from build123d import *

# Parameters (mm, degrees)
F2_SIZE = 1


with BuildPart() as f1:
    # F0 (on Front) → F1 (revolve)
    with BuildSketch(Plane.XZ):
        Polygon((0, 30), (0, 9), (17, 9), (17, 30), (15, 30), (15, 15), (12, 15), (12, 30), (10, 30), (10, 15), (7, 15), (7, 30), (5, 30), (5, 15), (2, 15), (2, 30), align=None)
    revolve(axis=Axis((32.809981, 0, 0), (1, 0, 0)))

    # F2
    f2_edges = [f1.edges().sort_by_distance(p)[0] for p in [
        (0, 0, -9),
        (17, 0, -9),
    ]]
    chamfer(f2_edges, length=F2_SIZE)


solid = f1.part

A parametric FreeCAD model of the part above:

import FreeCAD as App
import Part
import Sketcher


def edges_at(feature, points):
    """Names of the edges that pass closest to the given points."""
    edges = feature.Shape.Edges
    near = lambda p: min(range(len(edges)), key=lambda i: edges[i].distToShape(Part.Vertex(*p))[0])
    return sorted({f"Edge{near(p) + 1}" for p in points})


def add_polygon(sketch, points):
    """Adds a closed chain of lines whose ends are joined by coincident constraints."""
    first, n = sketch.GeometryCount, len(points)
    for a, b in zip(points, points[1:] + points[:1]):
        sketch.addGeometry(Part.LineSegment(App.Vector(*a, 0), App.Vector(*b, 0)), False)
    for i in range(n):
        sketch.addConstraint(Sketcher.Constraint("Coincident", first + i, 2, first + (i + 1) % n, 1))

doc = App.newDocument("Part")
params = doc.addObject("Spreadsheet::Sheet", "Params")
for row, (alias, value) in enumerate([
    ("sketch1_width", "17 mm"),
    ("sketch1_width2", "2 mm"),
    ("sketch1_height", "21 mm"),
    ("sketch1_height2", "15 mm"),
    ("revolution_angle", "360 deg"),
    ("chamfer_size", "1 mm"),
], start=1):
    params.set(f"A{row}", alias)
    params.set(f"B{row}", "=" + value)
    params.setAlias(f"B{row}", alias)

body = doc.addObject("PartDesign::Body", "Body")

# Sketch on XZ plane
sketch1 = body.newObject("Sketcher::SketchObject", "Sketch")
sketch1.AttachmentSupport = (doc.getObject("XZ_Plane"), [""])
sketch1.MapMode = "FlatFace"
add_polygon(sketch1, [(0, 30), (0, 9), (17, 9), (17, 30), (15, 30), (15, 15), (12, 15), (12, 30), (10, 30), (10, 15), (7, 15), (7, 30), (5, 30), (5, 15), (2, 15), (2, 30)])  # lines 0-15
sketch1.addConstraint([
    Sketcher.Constraint("Vertical", 0),
    Sketcher.Constraint("Horizontal", 1),
    Sketcher.Constraint("Vertical", 2),
    Sketcher.Constraint("Horizontal", 3),
    Sketcher.Constraint("Vertical", 4),
    Sketcher.Constraint("Horizontal", 5),
    Sketcher.Constraint("Vertical", 6),
    Sketcher.Constraint("Horizontal", 7),
    Sketcher.Constraint("Vertical", 8),
    Sketcher.Constraint("Horizontal", 9),
    Sketcher.Constraint("Vertical", 10),
    Sketcher.Constraint("Horizontal", 11),
    Sketcher.Constraint("Vertical", 12),
    Sketcher.Constraint("Horizontal", 13),
    Sketcher.Constraint("Vertical", 14),
    Sketcher.Constraint("Horizontal", 15),
    Sketcher.Constraint("PointOnObject", 0, 2, -2),
    Sketcher.Constraint("Horizontal", 3, 2, 6, 2),
    Sketcher.Constraint("Horizontal", 5, 2, 8, 2),
    Sketcher.Constraint("Horizontal", 7, 2, 10, 2),
    Sketcher.Constraint("Horizontal", 9, 2, 12, 2),
    Sketcher.Constraint("Horizontal", 11, 2, 14, 2),
    Sketcher.Constraint("Equal", 3, 7),
    Sketcher.Constraint("Equal", 5, 9),
    Sketcher.Constraint("Equal", 7, 11),
    Sketcher.Constraint("Equal", 9, 13),
    Sketcher.Constraint("Equal", 11, 15),
    Sketcher.Constraint("DistanceX", 1, 1, 1, 2, 17.0),
    Sketcher.Constraint("DistanceX", 3, 2, 3, 1, 2.0),
    Sketcher.Constraint("DistanceY", 0, 2, 0, 1, 21.0),
    Sketcher.Constraint("DistanceY", 4, 2, 4, 1, 15.0),
    Sketcher.Constraint("DistanceY", -1, 1, 0, 2, 9.0),
])
sketch1.setExpression("Constraints[43]", "Params.sketch1_width")
sketch1.setExpression("Constraints[44]", "Params.sketch1_width2")
sketch1.setExpression("Constraints[45]", "Params.sketch1_height")
sketch1.setExpression("Constraints[46]", "Params.sketch1_height2")
revolution = body.newObject("PartDesign::Revolution", "Revolution")
revolution.Profile = sketch1
revolution.ReferenceAxis = (sketch1, ["H_Axis"])
revolution.setExpression("Angle", "Params.revolution_angle")
doc.recompute()

chamfer = body.newObject("PartDesign::Chamfer", "Chamfer")
chamfer.Base = (revolution, edges_at(revolution, [(0, 0, -9), (17, 0, -9)]))
chamfer.setExpression("Size", "Params.chamfer_size")

doc.recompute()
